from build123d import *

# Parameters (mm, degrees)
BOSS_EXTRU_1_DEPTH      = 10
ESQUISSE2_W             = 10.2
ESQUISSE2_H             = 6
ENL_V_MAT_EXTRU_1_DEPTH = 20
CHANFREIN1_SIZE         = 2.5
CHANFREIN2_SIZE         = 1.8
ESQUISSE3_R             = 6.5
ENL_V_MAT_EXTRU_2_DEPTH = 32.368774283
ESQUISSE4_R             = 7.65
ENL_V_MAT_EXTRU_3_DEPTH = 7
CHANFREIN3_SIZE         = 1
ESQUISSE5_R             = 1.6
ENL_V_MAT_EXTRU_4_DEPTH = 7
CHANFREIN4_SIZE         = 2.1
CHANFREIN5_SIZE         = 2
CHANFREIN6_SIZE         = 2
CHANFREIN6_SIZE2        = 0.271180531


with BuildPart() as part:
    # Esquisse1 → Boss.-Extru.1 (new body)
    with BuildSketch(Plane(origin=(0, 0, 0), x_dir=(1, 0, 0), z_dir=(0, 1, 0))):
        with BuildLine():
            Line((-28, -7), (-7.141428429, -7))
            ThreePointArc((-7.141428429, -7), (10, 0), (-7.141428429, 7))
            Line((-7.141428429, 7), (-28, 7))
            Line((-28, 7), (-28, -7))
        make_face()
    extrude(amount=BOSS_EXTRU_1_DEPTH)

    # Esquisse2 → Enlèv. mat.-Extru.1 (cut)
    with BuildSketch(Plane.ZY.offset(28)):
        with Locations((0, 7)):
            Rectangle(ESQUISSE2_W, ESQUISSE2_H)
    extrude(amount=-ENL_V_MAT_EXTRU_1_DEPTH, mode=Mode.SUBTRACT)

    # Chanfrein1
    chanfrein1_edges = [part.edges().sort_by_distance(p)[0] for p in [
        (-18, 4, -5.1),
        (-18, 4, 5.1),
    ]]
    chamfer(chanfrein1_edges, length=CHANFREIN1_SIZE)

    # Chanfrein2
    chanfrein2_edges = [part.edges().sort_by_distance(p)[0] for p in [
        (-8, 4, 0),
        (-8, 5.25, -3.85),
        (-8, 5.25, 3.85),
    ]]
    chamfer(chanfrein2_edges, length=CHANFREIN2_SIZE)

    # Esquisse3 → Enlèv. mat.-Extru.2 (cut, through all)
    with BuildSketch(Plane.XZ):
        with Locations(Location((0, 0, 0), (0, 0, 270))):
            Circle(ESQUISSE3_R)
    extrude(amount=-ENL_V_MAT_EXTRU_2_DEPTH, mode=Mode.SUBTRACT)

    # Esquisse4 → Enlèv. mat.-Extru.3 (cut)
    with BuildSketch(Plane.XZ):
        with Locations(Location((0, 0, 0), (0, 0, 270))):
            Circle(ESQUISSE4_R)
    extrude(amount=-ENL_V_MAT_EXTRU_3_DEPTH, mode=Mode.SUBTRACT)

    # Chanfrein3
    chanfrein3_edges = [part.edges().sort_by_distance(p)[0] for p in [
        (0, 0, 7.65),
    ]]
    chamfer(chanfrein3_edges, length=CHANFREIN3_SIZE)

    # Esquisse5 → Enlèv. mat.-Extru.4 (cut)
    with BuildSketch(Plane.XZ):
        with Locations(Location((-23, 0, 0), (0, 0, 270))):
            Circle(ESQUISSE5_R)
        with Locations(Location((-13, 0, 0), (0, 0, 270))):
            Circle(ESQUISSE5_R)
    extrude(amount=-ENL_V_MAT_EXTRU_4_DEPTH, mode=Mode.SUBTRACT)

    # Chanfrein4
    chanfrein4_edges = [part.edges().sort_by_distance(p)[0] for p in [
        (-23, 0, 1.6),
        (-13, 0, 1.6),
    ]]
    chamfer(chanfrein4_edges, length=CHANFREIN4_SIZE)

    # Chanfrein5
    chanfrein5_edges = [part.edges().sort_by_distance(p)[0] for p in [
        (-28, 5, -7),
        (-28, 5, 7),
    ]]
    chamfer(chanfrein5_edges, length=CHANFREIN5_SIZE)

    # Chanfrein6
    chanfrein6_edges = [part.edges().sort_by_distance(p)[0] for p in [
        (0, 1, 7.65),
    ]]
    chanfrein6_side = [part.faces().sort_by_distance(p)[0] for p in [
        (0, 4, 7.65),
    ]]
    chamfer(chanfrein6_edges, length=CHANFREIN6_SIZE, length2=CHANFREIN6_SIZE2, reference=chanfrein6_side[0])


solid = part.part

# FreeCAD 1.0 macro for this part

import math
import FreeCAD as App
import Part
import Sketcher
from FreeCAD import Vector
Q = App.Units.Quantity


def edges_at(feature, points):
    """Names of the edges that pass closest to the given points."""
    edges = feature.Shape.Edges
    near = lambda p: min(range(len(edges)), key=lambda i: edges[i].distToShape(Part.Vertex(*p))[0])
    return sorted({f"Edge{near(p) + 1}" for p in points})

doc = App.newDocument("Part")
body = doc.addObject("PartDesign::Body", "Body")

# Sketch on XZ plane
sketch1 = body.newObject("Sketcher::SketchObject", "Sketch")
sketch1.AttachmentSupport = (doc.getObject("XZ_Plane"), [""])
sketch1.MapMode = "FlatFace"
sketch1.addGeometry([
    Part.LineSegment(Vector(-28, 7, 0), Vector(-7, 7, 0)),
    Part.ArcOfCircle(Part.Circle(Vector(0, 0, 0), Vector(0, 0, 1), 10), math.radians(-136), math.radians(136)),
    Part.LineSegment(Vector(-7, -7, 0), Vector(-28, -7, 0)),
    Part.LineSegment(Vector(-28, -7, 0), Vector(-28, 7, 0)),
], False)
sketch1.addConstraint([
    Sketcher.Constraint("Coincident", 0, 2, 1, 2),
    Sketcher.Constraint("Coincident", 1, 1, 2, 1),
    Sketcher.Constraint("Coincident", 2, 2, 3, 1),
    Sketcher.Constraint("Coincident", 3, 2, 0, 1),
    Sketcher.Constraint("Horizontal", 0),
    Sketcher.Constraint("Horizontal", 2),
    Sketcher.Constraint("Vertical", 3),
    Sketcher.Constraint("Coincident", 1, 3, -1, 1),
    Sketcher.Constraint("Vertical", 0, 2, 1, 1),
    Sketcher.Constraint("Radius", 1, Q("10 mm")),
    Sketcher.Constraint("DistanceY", 3, 1, 3, 2, Q("14 mm")),
    Sketcher.Constraint("DistanceX", 2, 2, -1, 1, Q("28 mm")),
])
pad1 = body.newObject("PartDesign::Pad", "Pad")
pad1.Profile = sketch1
pad1.Length = 10
pad1.Reversed = True

# Sketch on YZ plane
sketch2 = body.newObject("Sketcher::SketchObject", "Sketch001")
sketch2.AttachmentSupport = (doc.getObject("YZ_Plane"), [""])
sketch2.MapMode = "FlatFace"
sketch2.AttachmentOffset = App.Placement(Vector(0, 0, -28), App.Rotation())
sketch2.addGeometry([
    Part.LineSegment(Vector(10, -5, 0), Vector(4, -5, 0)),
    Part.LineSegment(Vector(4, -5, 0), Vector(4, 5, 0)),
    Part.LineSegment(Vector(4, 5, 0), Vector(10, 5, 0)),
    Part.LineSegment(Vector(10, 5, 0), Vector(10, -5, 0)),
], False)
sketch2.addConstraint([
    Sketcher.Constraint("Coincident", 0, 2, 1, 1),
    Sketcher.Constraint("Coincident", 1, 2, 2, 1),
    Sketcher.Constraint("Coincident", 2, 2, 3, 1),
    Sketcher.Constraint("Coincident", 3, 2, 0, 1),
    Sketcher.Constraint("Horizontal", 0),
    Sketcher.Constraint("Vertical", 1),
    Sketcher.Constraint("Horizontal", 2),
    Sketcher.Constraint("Vertical", 3),
    Sketcher.Constraint("DistanceX", 0, 2, 0, 1, Q("6 mm")),
    Sketcher.Constraint("DistanceY", 1, 1, 1, 2, Q("10.2 mm")),
    Sketcher.Constraint("DistanceX", -1, 1, 0, 2, Q("4 mm")),
    Sketcher.Constraint("DistanceY", 0, 2, -1, 1, Q("5.1 mm")),
])
pocket1 = body.newObject("PartDesign::Pocket", "Pocket")
pocket1.Profile = sketch2
pocket1.Length = 20
pocket1.Reversed = True
doc.recompute()

chamfer = body.newObject("PartDesign::Chamfer", "Chamfer")
chamfer.Base = (pocket1, edges_at(pocket1, [(-18, 4, -5.1), (-18, 4, 5.1)]))
chamfer.Size = 2.5
doc.recompute()

chamfer2 = body.newObject("PartDesign::Chamfer", "Chamfer001")
chamfer2.Base = (chamfer, edges_at(chamfer, [(-8, 4, 0), (-8, 5.25, -3.85), (-8, 5.25, 3.85)]))
chamfer2.Size = 1.8

# Sketch on XZ plane
sketch3 = body.newObject("Sketcher::SketchObject", "Sketch002")
sketch3.AttachmentSupport = (doc.getObject("XZ_Plane"), [""])
sketch3.MapMode = "FlatFace"
sketch3.addGeometry(Part.Circle(Vector(0, 0, 0), Vector(0, 0, 1), 6), False)
sketch3.addConstraint([
    Sketcher.Constraint("Coincident", 0, 3, -1, 1),
    Sketcher.Constraint("Diameter", 0, Q("13 mm")),
])
pocket2 = body.newObject("PartDesign::Pocket", "Pocket001")
pocket2.Profile = sketch3
pocket2.Type = "ThroughAll"

# Sketch on XZ plane
sketch4 = body.newObject("Sketcher::SketchObject", "Sketch003")
sketch4.AttachmentSupport = (doc.getObject("XZ_Plane"), [""])
sketch4.MapMode = "FlatFace"
sketch4.addGeometry(Part.Circle(Vector(0, 0, 0), Vector(0, 0, 1), 8), False)
sketch4.addConstraint([
    Sketcher.Constraint("Coincident", 0, 3, -1, 1),
    Sketcher.Constraint("Diameter", 0, Q("15.3 mm")),
])
pocket3 = body.newObject("PartDesign::Pocket", "Pocket002")
pocket3.Profile = sketch4
pocket3.Length = 7
doc.recompute()

chamfer3 = body.newObject("PartDesign::Chamfer", "Chamfer002")
chamfer3.Base = (pocket3, edges_at(pocket3, [(0, 0, 7.65)]))
chamfer3.Size = 1

# Sketch on XZ plane
sketch5 = body.newObject("Sketcher::SketchObject", "Sketch004")
sketch5.AttachmentSupport = (doc.getObject("XZ_Plane"), [""])
sketch5.MapMode = "FlatFace"
sketch5.addGeometry([
    Part.Circle(Vector(-23, 0, 0), Vector(0, 0, 1), 1.6),
    Part.Circle(Vector(-13, 0, 0), Vector(0, 0, 1), 1.6),
], False)
sketch5.addConstraint([
    Sketcher.Constraint("Equal", 0, 1),
    Sketcher.Constraint("PointOnObject", 0, 3, -1),
    Sketcher.Constraint("PointOnObject", 1, 3, -1),
    Sketcher.Constraint("Diameter", 0, Q("3.2 mm")),
    Sketcher.Constraint("DistanceX", 0, 3, -1, 1, Q("23 mm")),
    Sketcher.Constraint("DistanceX", 1, 3, -1, 1, Q("13 mm")),
])
pocket4 = body.newObject("PartDesign::Pocket", "Pocket003")
pocket4.Profile = sketch5
pocket4.Length = 7
doc.recompute()

chamfer4 = body.newObject("PartDesign::Chamfer", "Chamfer003")
chamfer4.Base = (pocket4, edges_at(pocket4, [(-23, 0, 1.6), (-13, 0, 1.6)]))
chamfer4.Size = 2.1
doc.recompute()

chamfer5 = body.newObject("PartDesign::Chamfer", "Chamfer004")
chamfer5.Base = (chamfer4, edges_at(chamfer4, [(-28, 5, -7), (-28, 5, 7)]))
chamfer5.Size = 2
doc.recompute()

chamfer6 = body.newObject("PartDesign::Chamfer", "Chamfer005")
chamfer6.Base = (chamfer5, edges_at(chamfer5, [(0, 1, 7.65)]))
chamfer6.ChamferType = "Two distances"
chamfer6.Size = 2
chamfer6.Size2 = 0.271181
chamfer6.FlipDirection = True

doc.recompute()
